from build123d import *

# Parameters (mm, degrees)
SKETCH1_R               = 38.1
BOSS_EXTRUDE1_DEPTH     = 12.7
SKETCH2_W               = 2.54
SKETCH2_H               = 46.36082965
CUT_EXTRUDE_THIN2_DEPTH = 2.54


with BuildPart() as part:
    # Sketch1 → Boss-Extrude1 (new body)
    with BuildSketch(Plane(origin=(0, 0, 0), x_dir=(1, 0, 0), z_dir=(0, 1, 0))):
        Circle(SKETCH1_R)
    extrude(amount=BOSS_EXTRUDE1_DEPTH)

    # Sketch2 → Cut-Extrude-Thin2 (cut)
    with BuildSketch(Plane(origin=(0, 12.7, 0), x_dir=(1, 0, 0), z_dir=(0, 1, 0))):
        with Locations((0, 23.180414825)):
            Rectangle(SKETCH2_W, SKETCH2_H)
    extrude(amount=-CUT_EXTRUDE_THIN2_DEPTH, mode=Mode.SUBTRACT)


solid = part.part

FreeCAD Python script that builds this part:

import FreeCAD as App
import Part
import Sketcher
Q = App.Units.Quantity


def add_polygon(sketch, points):
    """Adds a closed chain of lines whose ends are joined by coincident constraints."""
    first, n = sketch.GeometryCount, len(points)
    for a, b in zip(points, points[1:] + points[:1]):
        sketch.addGeometry(Part.LineSegment(App.Vector(*a, 0), App.Vector(*b, 0)), False)
    for i in range(n):
        sketch.addConstraint(Sketcher.Constraint("Coincident", first + i, 2, first + (i + 1) % n, 1))

doc = App.newDocument("Part")
body = doc.addObject("PartDesign::Body", "Body")

# Sketch on XZ plane
sketch1 = doc.addObject("Sketcher::SketchObject", "Sketch")
body.addObject(sketch1)
sketch1.AttachmentSupport = (doc.XZ_Plane, [""])
sketch1.MapMode = "FlatFace"
sketch1.addGeometry(Part.Circle(App.Vector(0, 0, 0), App.Vector(0, 0, 1), 38.1), False)
sketch1.addConstraint([
    Sketcher.Constraint("Coincident", 0, 3, -1, 1),
    Sketcher.Constraint("Diameter", 0, Q("3 in")),
])
pad1 = doc.addObject("PartDesign::Pad", "Pad")
body.addObject(pad1)
pad1.Profile = sketch1
pad1.Length = Q("0.5 in")
pad1.Reversed = True

# Sketch on XZ plane
sketch2 = doc.addObject("Sketcher::SketchObject", "Sketch001")
body.addObject(sketch2)
sketch2.AttachmentSupport = (doc.XZ_Plane, [""])
sketch2.MapMode = "FlatFace"
sketch2.AttachmentOffset = App.Placement(App.Vector(0, 0, -0.5 * 25.4), App.Rotation())
add_polygon(sketch2, [(-1.27, -46.36083), (-1.27, 0), (1.27, 0), (1.27, -46.36083)])  # lines 0-3
sketch2.addConstraint([
    Sketcher.Constraint("Vertical", 0),
    Sketcher.Constraint("Horizontal", 1),
    Sketcher.Constraint("Vertical", 2),
    Sketcher.Constraint("Horizontal", 3),
    Sketcher.Constraint("Symmetric", 0, 2, 1, 2, -1, 1),
    Sketcher.Constraint("DistanceX", 1, 1, 1, 2, Q("0.1 in")),
    Sketcher.Constraint("DistanceY", 0, 1, 0, 2, 46.36083),
])
pocket1 = doc.addObject("PartDesign::Pocket", "Pocket")
body.addObject(pocket1)
pocket1.Profile = sketch2
pocket1.Length = Q("0.1 in")
pocket1.Reversed = True

doc.recompute()
